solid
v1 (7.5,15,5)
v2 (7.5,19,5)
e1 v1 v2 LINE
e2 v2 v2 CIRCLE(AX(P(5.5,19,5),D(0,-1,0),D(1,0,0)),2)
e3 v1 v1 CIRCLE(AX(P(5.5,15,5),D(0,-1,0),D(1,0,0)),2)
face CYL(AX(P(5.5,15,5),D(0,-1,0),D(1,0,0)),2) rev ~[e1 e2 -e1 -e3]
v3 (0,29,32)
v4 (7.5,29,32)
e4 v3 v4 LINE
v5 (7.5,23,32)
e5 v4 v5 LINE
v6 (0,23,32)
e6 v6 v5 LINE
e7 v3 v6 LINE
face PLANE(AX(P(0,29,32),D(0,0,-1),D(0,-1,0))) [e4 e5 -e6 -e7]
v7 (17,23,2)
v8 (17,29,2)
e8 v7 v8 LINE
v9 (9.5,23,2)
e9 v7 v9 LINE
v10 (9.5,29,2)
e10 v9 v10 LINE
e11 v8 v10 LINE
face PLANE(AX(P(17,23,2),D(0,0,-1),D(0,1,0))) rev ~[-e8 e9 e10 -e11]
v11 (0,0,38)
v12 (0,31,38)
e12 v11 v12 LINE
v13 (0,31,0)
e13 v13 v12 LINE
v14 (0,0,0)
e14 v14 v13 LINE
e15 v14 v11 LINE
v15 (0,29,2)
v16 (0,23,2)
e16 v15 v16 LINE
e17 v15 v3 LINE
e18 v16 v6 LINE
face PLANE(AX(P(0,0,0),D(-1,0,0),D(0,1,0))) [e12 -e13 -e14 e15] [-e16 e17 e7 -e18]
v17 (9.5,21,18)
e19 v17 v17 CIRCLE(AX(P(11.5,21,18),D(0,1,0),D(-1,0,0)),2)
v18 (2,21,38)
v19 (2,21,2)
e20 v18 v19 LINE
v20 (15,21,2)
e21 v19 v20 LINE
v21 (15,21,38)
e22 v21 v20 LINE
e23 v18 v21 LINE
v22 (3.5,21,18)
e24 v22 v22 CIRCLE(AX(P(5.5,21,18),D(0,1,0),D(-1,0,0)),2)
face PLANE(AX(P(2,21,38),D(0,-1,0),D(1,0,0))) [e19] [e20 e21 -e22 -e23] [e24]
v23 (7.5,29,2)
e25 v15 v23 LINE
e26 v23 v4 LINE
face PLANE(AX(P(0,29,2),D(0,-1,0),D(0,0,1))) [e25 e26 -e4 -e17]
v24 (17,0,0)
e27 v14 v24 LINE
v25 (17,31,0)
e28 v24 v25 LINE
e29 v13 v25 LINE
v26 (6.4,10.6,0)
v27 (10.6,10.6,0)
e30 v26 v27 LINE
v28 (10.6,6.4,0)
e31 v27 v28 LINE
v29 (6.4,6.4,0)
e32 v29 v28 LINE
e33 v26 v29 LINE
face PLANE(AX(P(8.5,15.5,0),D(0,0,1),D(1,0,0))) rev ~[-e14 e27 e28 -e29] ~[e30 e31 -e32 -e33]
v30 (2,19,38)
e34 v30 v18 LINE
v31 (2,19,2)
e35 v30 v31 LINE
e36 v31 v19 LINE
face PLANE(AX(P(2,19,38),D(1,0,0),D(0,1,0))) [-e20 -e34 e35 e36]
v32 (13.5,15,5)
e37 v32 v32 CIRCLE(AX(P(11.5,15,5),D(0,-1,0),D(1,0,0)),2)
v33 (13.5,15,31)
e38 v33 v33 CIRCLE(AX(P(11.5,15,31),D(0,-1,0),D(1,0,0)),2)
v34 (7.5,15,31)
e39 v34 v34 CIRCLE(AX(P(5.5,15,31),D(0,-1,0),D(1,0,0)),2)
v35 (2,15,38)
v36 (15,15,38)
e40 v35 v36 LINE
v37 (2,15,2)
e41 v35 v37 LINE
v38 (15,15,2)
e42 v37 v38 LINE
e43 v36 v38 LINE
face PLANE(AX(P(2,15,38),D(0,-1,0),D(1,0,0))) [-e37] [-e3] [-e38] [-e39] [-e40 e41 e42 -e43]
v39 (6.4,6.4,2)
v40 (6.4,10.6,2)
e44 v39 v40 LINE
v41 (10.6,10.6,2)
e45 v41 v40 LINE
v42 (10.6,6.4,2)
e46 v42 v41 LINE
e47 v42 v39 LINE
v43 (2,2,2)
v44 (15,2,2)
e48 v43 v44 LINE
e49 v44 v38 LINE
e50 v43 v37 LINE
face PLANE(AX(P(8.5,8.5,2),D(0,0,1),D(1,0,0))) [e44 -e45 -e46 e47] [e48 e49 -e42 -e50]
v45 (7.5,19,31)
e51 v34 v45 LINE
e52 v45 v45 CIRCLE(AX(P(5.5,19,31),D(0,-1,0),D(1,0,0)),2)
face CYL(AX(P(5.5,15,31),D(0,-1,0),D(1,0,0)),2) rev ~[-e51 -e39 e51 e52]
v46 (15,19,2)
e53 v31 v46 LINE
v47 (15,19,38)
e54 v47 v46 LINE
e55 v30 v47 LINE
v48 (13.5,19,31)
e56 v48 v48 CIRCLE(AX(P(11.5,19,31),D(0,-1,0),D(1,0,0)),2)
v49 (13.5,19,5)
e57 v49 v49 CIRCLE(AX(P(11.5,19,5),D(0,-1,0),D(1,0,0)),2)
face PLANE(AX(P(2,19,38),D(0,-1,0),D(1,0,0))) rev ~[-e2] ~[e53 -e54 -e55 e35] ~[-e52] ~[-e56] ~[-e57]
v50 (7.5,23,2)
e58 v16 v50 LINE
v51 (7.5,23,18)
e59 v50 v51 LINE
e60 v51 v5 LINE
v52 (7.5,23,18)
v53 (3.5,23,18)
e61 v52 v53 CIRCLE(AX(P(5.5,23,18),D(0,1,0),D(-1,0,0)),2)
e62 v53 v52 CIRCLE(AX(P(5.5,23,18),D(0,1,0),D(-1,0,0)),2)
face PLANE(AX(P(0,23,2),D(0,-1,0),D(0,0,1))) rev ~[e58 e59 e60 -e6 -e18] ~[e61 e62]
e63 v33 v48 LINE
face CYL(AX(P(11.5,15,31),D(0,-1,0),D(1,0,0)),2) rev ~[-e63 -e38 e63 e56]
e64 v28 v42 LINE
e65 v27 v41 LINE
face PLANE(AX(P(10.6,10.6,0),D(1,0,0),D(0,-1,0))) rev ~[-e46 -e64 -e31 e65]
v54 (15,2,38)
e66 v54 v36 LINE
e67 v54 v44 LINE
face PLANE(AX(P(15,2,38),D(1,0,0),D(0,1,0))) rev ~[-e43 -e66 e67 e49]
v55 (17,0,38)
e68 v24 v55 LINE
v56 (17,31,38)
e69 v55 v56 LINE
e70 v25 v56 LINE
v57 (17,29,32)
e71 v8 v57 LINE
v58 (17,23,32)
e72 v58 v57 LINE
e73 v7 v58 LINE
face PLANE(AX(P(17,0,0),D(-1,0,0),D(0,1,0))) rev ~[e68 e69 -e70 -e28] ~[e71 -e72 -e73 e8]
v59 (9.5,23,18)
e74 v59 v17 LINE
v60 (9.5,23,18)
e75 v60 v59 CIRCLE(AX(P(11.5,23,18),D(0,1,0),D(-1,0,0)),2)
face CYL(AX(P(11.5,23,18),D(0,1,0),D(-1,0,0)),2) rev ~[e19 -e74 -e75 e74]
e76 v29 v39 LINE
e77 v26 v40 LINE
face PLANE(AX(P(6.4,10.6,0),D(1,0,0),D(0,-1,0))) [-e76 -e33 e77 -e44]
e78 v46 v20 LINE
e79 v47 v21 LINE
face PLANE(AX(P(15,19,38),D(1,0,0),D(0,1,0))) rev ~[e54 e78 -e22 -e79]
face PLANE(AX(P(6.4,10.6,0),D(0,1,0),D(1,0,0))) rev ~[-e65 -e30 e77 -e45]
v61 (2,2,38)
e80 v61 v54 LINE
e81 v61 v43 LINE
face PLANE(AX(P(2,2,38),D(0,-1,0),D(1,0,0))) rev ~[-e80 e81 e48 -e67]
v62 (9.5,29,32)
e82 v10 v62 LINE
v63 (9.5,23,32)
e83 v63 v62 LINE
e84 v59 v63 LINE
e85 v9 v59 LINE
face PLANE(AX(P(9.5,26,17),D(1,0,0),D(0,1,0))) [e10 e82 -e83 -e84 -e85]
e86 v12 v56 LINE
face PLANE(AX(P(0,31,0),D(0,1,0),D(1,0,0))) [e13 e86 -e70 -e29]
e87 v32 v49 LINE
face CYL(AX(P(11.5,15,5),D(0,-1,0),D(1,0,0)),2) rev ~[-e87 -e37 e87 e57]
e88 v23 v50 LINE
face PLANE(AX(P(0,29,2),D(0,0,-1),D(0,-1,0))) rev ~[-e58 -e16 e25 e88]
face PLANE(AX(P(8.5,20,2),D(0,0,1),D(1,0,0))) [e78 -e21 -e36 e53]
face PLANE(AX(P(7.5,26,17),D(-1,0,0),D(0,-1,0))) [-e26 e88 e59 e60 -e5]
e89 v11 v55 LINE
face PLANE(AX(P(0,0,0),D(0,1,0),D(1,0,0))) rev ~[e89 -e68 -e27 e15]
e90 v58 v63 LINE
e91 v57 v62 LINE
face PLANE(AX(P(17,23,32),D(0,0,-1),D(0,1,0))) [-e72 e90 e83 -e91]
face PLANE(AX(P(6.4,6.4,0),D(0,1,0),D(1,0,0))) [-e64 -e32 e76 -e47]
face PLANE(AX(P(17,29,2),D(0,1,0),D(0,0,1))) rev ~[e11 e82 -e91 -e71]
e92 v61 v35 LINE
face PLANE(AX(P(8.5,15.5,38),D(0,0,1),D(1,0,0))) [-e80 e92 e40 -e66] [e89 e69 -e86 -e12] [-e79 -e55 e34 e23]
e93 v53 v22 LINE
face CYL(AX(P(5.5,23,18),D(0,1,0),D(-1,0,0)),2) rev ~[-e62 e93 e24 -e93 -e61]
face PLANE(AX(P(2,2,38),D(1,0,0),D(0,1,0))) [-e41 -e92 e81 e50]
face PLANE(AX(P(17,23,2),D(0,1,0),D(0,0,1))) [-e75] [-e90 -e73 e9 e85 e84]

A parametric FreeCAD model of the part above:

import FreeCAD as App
import Part
import Sketcher


def add_polygon(sketch, points):
    """Adds a closed chain of lines whose ends are joined by coincident constraints."""
    first, n = sketch.GeometryCount, len(points)
    for a, b in zip(points, points[1:] + points[:1]):
        sketch.addGeometry(Part.LineSegment(App.Vector(*a, 0), App.Vector(*b, 0)), False)
    for i in range(n):
        sketch.addConstraint(Sketcher.Constraint("Coincident", first + i, 2, first + (i + 1) % n, 1))

doc = App.newDocument("Part")
params = doc.addObject("Spreadsheet::Sheet", "Params")
for row, (alias, value) in enumerate([
    ("sketch1_width", "17 mm"),
    ("sketch1_height", "31 mm"),
    ("pad1_length", "38 mm"),
    ("sketch2_width", "13 mm"),
    ("pocket1_length", "36 mm"),
    ("sketch3_width", "4.2 mm"),
    ("pocket2_length", "5 mm"),
    ("sketch4_width", "13 mm"),
    ("sketch4_height", "2 mm"),
    ("pocket3_length", "36 mm"),
    ("sketch5_width", "6 mm"),
    ("sketch5_height", "30 mm"),
    ("pocket4_length", "7.5 mm"),
    ("sketch6_width", "6 mm"),
    ("sketch6_height", "30 mm"),
    ("pocket5_length", "7.5 mm"),
    ("sketch7_diameter", "4 mm"),
    ("pocket6_length", "5 mm"),
    ("sketch8_diameter", "4 mm"),
    ("pocket7_length", "2 mm"),
], start=1):
    params.set(f"A{row}", alias)
    params.set(f"B{row}", "=" + value)
    params.setAlias(f"B{row}", alias)

body = doc.addObject("PartDesign::Body", "Body")

# Sketch on XY plane
sketch1 = body.newObject("Sketcher::SketchObject", "Sketch")
sketch1.AttachmentSupport = (doc.getObject("XY_Plane"), [""])
sketch1.MapMode = "FlatFace"
add_polygon(sketch1, [(0, 31), (0, 0), (17, 0), (17, 31)])  # lines 0-3
sketch1.addConstraint([
    Sketcher.Constraint("Vertical", 0),
    Sketcher.Constraint("Horizontal", 1),
    Sketcher.Constraint("Vertical", 2),
    Sketcher.Constraint("Horizontal", 3),
    Sketcher.Constraint("Coincident", 0, 2, -1, 1),
    Sketcher.Constraint("DistanceX", 1, 1, 1, 2, 17.0),
    Sketcher.Constraint("DistanceY", 0, 2, 0, 1, 31.0),
])
sketch1.setExpression("Constraints[9]", "Params.sketch1_width")
sketch1.setExpression("Constraints[10]", "Params.sketch1_height")
pad1 = body.newObject("PartDesign::Pad", "Pad")
pad1.Profile = sketch1
pad1.setExpression("Length", "Params.pad1_length")

# Sketch on XY plane
sketch2 = body.newObject("Sketcher::SketchObject", "Sketch001")
sketch2.AttachmentSupport = (doc.getObject("XY_Plane"), [""])
sketch2.MapMode = "FlatFace"
sketch2.AttachmentOffset = App.Placement(App.Vector(0, 0, 38), App.Rotation())
add_polygon(sketch2, [(2, 15), (2, 2), (15, 2), (15, 15)])  # lines 0-3
sketch2.addConstraint([
    Sketcher.Constraint("Vertical", 0),
    Sketcher.Constraint("Horizontal", 1),
    Sketcher.Constraint("Vertical", 2),
    Sketcher.Constraint("Horizontal", 3),
    Sketcher.Constraint("Equal", 3, 0),
    Sketcher.Constraint("DistanceX", 1, 1, 1, 2, 13.0),
    Sketcher.Constraint("DistanceX", -1, 1, 0, 2, 2.0),
    Sketcher.Constraint("DistanceY", -1, 1, 0, 2, 2.0),
])
sketch2.setExpression("Constraints[9]", "Params.sketch2_width")
pocket1 = body.newObject("PartDesign::Pocket", "Pocket")
pocket1.Profile = sketch2
pocket1.setExpression("Length", "Params.pocket1_length")

# Sketch on XY plane
sketch3 = body.newObject("Sketcher::SketchObject", "Sketch002")
sketch3.AttachmentSupport = (doc.getObject("XY_Plane"), [""])
sketch3.MapMode = "FlatFace"
add_polygon(sketch3, [(6.4, 6.4), (6.4, 10.6), (10.6, 10.6), (10.6, 6.4)])  # lines 0-3
sketch3.addConstraint([
    Sketcher.Constraint("Vertical", 0),
    Sketcher.Constraint("Horizontal", 1),
    Sketcher.Constraint("Vertical", 2),
    Sketcher.Constraint("Horizontal", 3),
    Sketcher.Constraint("Equal", 3, 0),
    Sketcher.Constraint("DistanceX", 1, 1, 1, 2, 4.2),
    Sketcher.Constraint("DistanceX", -1, 1, 0, 2, 6.4),
    Sketcher.Constraint("DistanceY", -1, 1, 0, 2, 10.6),
])
sketch3.setExpression("Constraints[9]", "Params.sketch3_width")
pocket2 = body.newObject("PartDesign::Pocket", "Pocket001")
pocket2.Profile = sketch3
pocket2.setExpression("Length", "Params.pocket2_length")
pocket2.Reversed = True

# Sketch on XY plane
sketch4 = body.newObject("Sketcher::SketchObject", "Sketch003")
sketch4.AttachmentSupport = (doc.getObject("XY_Plane"), [""])
sketch4.MapMode = "FlatFace"
sketch4.AttachmentOffset = App.Placement(App.Vector(0, 0, 38), App.Rotation())
add_polygon(sketch4, [(2, 21), (2, 19), (15, 19), (15, 21)])  # lines 0-3
sketch4.addConstraint([
    Sketcher.Constraint("Vertical", 0),
    Sketcher.Constraint("Horizontal", 1),
    Sketcher.Constraint("Vertical", 2),
    Sketcher.Constraint("Horizontal", 3),
    Sketcher.Constraint("DistanceX", 1, 1, 1, 2, 13.0),
    Sketcher.Constraint("DistanceY", 0, 2, 0, 1, 2.0),
    Sketcher.Constraint("DistanceX", -1, 1, 0, 2, 2.0),
    Sketcher.Constraint("DistanceY", -1, 1, 0, 2, 19.0),
])
sketch4.setExpression("Constraints[8]", "Params.sketch4_width")
sketch4.setExpression("Constraints[9]", "Params.sketch4_height")
pocket3 = body.newObject("PartDesign::Pocket", "Pocket002")
pocket3.Profile = sketch4
pocket3.setExpression("Length", "Params.pocket3_length")

# Sketch on YZ plane
sketch5 = body.newObject("Sketcher::SketchObject", "Sketch004")
sketch5.AttachmentSupport = (doc.getObject("YZ_Plane"), [""])
sketch5.MapMode = "FlatFace"
add_polygon(sketch5, [(29, 32), (29, 2), (23, 2), (23, 32)])  # lines 0-3
sketch5.addConstraint([
    Sketcher.Constraint("Vertical", 0),
    Sketcher.Constraint("Horizontal", 1),
    Sketcher.Constraint("Vertical", 2),
    Sketcher.Constraint("Horizontal", 3),
    Sketcher.Constraint("DistanceX", 1, 2, 1, 1, 6.0),
    Sketcher.Constraint("DistanceY", 0, 2, 0, 1, 30.0),
    Sketcher.Constraint("DistanceX", -1, 1, 0, 2, 29.0),
    Sketcher.Constraint("DistanceY", -1, 1, 0, 2, 2.0),
])
sketch5.setExpression("Constraints[8]", "Params.sketch5_width")
sketch5.setExpression("Constraints[9]", "Params.sketch5_height")
pocket4 = body.newObject("PartDesign::Pocket", "Pocket003")
pocket4.Profile = sketch5
pocket4.setExpression("Length", "Params.pocket4_length")
pocket4.Reversed = True

# Sketch on YZ plane
sketch6 = body.newObject("Sketcher::SketchObject", "Sketch005")
sketch6.AttachmentSupport = (doc.getObject("YZ_Plane"), [""])
sketch6.MapMode = "FlatFace"
sketch6.AttachmentOffset = App.Placement(App.Vector(0, 0, 17), App.Rotation())
add_polygon(sketch6, [(23, 32), (23, 2), (29, 2), (29, 32)])  # lines 0-3
sketch6.addConstraint([
    Sketcher.Constraint("Vertical", 0),
    Sketcher.Constraint("Horizontal", 1),
    Sketcher.Constraint("Vertical", 2),
    Sketcher.Constraint("Horizontal", 3),
    Sketcher.Constraint("DistanceX", 1, 1, 1, 2, 6.0),
    Sketcher.Constraint("DistanceY", 0, 2, 0, 1, 30.0),
    Sketcher.Constraint("DistanceX", -1, 1, 0, 2, 23.0),
    Sketcher.Constraint("DistanceY", -1, 1, 0, 2, 2.0),
])
sketch6.setExpression("Constraints[8]", "Params.sketch6_width")
sketch6.setExpression("Constraints[9]", "Params.sketch6_height")
pocket5 = body.newObject("PartDesign::Pocket", "Pocket004")
pocket5.Profile = sketch6
pocket5.setExpression("Length", "Params.pocket5_length")

# Sketch on XZ plane
sketch7 = body.newObject("Sketcher::SketchObject", "Sketch006")
sketch7.AttachmentSupport = (doc.getObject("XZ_Plane"), [""])
sketch7.MapMode = "FlatFace"
sketch7.AttachmentOffset = App.Placement(App.Vector(0, 0, -15), App.Rotation())
sketch7.addGeometry([
    Part.Circle(App.Vector(5.5, 31, 0), App.Vector(0, 0, 1), 2),
    Part.Circle(App.Vector(11.5, 31, 0), App.Vector(0, 0, 1), 2),
    Part.Circle(App.Vector(5.5, 5, 0), App.Vector(0, 0, 1), 2),
    Part.Circle(App.Vector(11.5, 5, 0), App.Vector(0, 0, 1), 2),
], False)
sketch7.addConstraint([
    Sketcher.Constraint("Equal", 0, 1),
    Sketcher.Constraint("Equal", 1, 2),
    Sketcher.Constraint("Equal", 2, 3),
    Sketcher.Constraint("Horizontal", 0, 3, 1, 3),
    Sketcher.Constraint("Horizontal", 2, 3, 3, 3),
    Sketcher.Constraint("Vertical", 0, 3, 2, 3),
    Sketcher.Constraint("Vertical", 1, 3, 3, 3),
    Sketcher.Constraint("Diameter", 0, 4.0),
    Sketcher.Constraint("DistanceY", -1, 1, 0, 3, 31.0),
    Sketcher.Constraint("DistanceY", -1, 1, 2, 3, 5.0),
    Sketcher.Constraint("DistanceX", 0, 3, 1, 3, 6.0),
    Sketcher.Constraint("DistanceX", -1, 1, 0, 3, 5.5),
])
sketch7.setExpression("Constraints[7]", "Params.sketch7_diameter")
pocket6 = body.newObject("PartDesign::Pocket", "Pocket005")
pocket6.Profile = sketch7
pocket6.setExpression("Length", "Params.pocket6_length")

# Sketch on XZ plane
sketch8 = body.newObject("Sketcher::SketchObject", "Sketch007")
sketch8.AttachmentSupport = (doc.getObject("XZ_Plane"), [""])
sketch8.MapMode = "FlatFace"
sketch8.AttachmentOffset = App.Placement(App.Vector(0, 0, -23), App.Rotation())
sketch8.addGeometry([
    Part.Circle(App.Vector(5.5, 18, 0), App.Vector(0, 0, 1), 2),
    Part.Circle(App.Vector(11.5, 18, 0), App.Vector(0, 0, 1), 2),
], False)
sketch8.addConstraint([
    Sketcher.Constraint("Equal", 0, 1),
    Sketcher.Constraint("Horizontal", 0, 3, 1, 3),
    Sketcher.Constraint("Diameter", 0, 4.0),
    Sketcher.Constraint("DistanceY", -1, 1, 0, 3, 18.0),
    Sketcher.Constraint("DistanceX", 0, 3, 1, 3, 6.0),
    Sketcher.Constraint("DistanceX", -1, 1, 0, 3, 5.5),
])
sketch8.setExpression("Constraints[2]", "Params.sketch8_diameter")
pocket7 = body.newObject("PartDesign::Pocket", "Pocket006")
pocket7.Profile = sketch8
pocket7.setExpression("Length", "Params.pocket7_length")
pocket7.Reversed = True

doc.recompute()
